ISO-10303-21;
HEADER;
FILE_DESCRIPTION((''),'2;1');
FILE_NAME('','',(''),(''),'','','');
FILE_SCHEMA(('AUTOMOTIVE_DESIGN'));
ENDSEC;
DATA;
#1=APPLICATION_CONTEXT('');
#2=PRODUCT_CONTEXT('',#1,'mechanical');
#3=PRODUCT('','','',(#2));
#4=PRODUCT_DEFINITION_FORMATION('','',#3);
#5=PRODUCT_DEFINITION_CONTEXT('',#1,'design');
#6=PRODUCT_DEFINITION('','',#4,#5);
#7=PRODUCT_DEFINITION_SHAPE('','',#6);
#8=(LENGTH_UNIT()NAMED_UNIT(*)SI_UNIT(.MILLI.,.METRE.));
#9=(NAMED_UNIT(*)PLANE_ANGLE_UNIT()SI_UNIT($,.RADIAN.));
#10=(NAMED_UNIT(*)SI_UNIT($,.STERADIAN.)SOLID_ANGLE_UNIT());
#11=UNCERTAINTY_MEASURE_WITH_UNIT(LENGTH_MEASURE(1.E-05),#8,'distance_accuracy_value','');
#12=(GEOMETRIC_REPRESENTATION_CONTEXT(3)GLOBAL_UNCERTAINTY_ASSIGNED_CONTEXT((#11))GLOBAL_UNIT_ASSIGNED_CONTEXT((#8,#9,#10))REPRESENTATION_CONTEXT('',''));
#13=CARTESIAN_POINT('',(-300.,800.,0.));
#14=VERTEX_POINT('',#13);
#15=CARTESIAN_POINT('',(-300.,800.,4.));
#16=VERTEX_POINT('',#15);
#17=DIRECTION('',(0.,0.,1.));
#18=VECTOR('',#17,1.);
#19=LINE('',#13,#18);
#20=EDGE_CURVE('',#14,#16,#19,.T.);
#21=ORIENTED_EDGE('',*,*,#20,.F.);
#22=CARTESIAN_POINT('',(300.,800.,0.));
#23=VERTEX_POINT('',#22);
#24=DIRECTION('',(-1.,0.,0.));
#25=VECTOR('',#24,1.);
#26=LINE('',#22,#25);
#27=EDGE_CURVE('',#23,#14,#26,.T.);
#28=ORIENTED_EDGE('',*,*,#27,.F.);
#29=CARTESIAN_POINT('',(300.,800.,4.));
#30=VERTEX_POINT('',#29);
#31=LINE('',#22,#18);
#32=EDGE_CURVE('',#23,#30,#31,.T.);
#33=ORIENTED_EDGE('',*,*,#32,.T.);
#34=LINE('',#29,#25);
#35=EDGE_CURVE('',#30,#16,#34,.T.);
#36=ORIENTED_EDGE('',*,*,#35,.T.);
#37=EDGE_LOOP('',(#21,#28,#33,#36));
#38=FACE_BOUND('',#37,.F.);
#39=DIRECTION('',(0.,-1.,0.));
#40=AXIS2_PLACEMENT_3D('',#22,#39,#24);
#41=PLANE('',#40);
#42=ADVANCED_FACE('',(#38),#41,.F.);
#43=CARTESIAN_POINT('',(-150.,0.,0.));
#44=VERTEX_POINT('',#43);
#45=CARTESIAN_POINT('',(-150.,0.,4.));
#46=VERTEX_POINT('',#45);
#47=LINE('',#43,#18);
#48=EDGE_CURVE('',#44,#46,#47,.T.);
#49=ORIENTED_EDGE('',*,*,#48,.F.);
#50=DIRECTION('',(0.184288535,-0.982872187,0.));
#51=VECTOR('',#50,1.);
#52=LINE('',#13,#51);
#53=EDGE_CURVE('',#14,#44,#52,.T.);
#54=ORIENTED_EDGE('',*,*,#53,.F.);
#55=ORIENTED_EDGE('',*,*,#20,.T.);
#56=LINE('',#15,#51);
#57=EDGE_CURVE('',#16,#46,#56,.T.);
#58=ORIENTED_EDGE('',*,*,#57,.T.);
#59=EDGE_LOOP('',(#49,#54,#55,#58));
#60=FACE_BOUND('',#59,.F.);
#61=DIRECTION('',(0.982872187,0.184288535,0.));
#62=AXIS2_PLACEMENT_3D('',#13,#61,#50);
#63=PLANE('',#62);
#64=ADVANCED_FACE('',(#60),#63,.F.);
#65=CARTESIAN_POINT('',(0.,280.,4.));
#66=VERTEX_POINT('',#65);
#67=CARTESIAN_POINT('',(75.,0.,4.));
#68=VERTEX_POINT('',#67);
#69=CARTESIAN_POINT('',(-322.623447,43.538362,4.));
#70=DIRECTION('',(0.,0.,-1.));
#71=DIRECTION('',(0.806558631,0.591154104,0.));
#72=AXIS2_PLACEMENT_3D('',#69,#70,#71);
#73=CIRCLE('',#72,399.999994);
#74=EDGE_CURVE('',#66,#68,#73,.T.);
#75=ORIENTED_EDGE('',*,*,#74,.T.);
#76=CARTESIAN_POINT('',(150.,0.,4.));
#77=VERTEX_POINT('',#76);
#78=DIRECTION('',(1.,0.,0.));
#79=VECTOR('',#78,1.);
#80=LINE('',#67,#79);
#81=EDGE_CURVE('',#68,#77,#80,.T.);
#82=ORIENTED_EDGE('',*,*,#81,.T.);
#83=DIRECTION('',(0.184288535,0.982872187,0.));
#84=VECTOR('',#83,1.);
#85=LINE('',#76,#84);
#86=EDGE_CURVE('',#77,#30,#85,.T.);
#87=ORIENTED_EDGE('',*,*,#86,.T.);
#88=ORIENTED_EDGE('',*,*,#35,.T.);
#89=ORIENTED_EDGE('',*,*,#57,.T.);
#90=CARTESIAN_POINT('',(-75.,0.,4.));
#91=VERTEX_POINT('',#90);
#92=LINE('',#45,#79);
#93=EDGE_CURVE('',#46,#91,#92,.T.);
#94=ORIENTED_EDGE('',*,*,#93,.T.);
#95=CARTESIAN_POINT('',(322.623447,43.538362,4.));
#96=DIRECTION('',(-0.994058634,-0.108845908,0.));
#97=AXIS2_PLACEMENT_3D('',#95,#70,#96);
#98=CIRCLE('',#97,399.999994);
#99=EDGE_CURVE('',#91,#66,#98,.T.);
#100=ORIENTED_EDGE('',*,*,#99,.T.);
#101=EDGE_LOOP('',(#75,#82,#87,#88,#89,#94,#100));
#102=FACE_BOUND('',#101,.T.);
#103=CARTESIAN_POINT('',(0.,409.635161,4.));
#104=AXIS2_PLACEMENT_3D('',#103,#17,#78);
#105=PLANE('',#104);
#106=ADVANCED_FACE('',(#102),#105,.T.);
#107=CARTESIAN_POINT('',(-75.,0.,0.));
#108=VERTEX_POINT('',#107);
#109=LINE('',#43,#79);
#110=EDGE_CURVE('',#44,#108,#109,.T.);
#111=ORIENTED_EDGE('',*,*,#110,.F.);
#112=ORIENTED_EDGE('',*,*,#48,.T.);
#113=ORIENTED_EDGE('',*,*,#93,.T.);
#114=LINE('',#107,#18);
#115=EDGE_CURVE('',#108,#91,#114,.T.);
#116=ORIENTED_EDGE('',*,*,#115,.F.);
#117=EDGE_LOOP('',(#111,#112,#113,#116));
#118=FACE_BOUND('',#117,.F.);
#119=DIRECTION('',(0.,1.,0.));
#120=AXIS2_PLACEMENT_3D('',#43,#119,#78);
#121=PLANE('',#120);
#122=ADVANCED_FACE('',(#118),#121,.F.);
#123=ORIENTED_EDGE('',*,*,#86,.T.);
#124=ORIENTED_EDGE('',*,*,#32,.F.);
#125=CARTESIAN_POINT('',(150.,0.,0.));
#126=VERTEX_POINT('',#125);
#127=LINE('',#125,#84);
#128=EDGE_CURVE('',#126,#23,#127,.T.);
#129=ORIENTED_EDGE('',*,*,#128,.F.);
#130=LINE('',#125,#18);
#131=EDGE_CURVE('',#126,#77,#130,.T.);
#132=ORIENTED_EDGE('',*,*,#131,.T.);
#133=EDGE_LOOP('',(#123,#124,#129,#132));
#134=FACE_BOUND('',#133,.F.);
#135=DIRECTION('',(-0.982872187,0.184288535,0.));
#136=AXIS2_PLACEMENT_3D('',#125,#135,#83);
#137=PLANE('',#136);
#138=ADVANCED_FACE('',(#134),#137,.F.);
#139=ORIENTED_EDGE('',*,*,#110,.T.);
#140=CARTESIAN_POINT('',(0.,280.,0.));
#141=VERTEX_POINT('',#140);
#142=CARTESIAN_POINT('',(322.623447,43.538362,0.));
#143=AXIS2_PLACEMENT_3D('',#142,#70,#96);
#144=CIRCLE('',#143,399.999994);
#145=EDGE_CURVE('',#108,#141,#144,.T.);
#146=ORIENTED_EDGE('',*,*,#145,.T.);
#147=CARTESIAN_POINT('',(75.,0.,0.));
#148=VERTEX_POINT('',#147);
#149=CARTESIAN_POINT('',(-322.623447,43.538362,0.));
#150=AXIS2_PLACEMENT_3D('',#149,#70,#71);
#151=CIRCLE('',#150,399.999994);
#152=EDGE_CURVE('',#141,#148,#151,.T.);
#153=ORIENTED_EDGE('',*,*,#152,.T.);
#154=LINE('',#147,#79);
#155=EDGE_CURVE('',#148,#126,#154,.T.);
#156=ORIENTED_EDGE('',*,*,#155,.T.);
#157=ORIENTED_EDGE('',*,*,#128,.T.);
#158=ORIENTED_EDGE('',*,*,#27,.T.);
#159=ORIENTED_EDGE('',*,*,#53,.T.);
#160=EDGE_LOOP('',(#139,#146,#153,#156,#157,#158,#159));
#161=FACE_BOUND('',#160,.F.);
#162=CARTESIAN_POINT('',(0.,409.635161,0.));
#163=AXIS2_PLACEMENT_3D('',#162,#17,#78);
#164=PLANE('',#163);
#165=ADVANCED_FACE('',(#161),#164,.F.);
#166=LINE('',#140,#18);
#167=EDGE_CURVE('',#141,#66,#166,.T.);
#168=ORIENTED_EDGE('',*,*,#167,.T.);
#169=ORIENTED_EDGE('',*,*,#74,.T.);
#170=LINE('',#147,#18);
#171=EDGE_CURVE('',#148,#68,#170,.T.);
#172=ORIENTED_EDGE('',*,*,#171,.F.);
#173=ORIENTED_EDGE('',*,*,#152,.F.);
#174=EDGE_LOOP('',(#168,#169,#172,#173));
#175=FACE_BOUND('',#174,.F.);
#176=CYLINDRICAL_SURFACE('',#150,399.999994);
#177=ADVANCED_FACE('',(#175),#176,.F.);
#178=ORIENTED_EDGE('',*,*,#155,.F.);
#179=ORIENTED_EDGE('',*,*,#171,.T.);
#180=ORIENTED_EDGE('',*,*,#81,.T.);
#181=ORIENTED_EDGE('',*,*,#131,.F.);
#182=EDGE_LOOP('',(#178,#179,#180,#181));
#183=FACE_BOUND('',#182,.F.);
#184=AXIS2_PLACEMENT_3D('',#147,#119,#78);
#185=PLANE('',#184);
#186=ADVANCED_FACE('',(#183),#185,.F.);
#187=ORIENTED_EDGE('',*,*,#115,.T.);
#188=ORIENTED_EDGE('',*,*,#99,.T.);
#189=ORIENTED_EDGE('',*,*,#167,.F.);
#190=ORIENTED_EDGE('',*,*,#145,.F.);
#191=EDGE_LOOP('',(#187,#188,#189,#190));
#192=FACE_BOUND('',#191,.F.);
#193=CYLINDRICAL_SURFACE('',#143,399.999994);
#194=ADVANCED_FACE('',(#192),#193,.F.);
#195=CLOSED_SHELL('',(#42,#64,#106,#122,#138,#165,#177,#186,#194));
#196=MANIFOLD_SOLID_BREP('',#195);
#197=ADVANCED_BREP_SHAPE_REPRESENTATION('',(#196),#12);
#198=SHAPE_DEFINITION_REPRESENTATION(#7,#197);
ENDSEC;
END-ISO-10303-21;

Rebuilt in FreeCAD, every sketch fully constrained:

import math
import FreeCAD as App
import Part
import Sketcher

V = App.Vector

doc = App.newDocument("Part")
body = doc.addObject("PartDesign::Body", "Body")

# Sketch on XY plane
sketch1 = body.newObject("Sketcher::SketchObject", "Sketch")
sketch1.AttachmentSupport = (doc.getObject("XY_Plane"), [""])
sketch1.MapMode = "FlatFace"
sketch1.addGeometry([
    Part.ArcOfCircle(Part.Circle(V(-323, 44, 0), V(0, 0, 1), 400), math.radians(-6), math.radians(36)),  # 0
    Part.LineSegment(V(75, 0, 0), V(150, 0, 0)),  # 1
    Part.LineSegment(V(150, 0, 0), V(300, 800, 0)),  # 2
    Part.LineSegment(V(300, 800, 0), V(-300, 800, 0)),  # 3
    Part.LineSegment(V(-300, 800, 0), V(-150, 0, 0)),  # 4
    Part.LineSegment(V(-150, 0, 0), V(-75, 0, 0)),  # 5
    Part.ArcOfCircle(Part.Circle(V(323, 44, 0), V(0, 0, 1), 400), math.radians(144), math.radians(186)),  # 6
], False)
sketch1.addConstraint([
    Sketcher.Constraint("Coincident", 0, 1, 1, 1),
    Sketcher.Constraint("Coincident", 1, 2, 2, 1),
    Sketcher.Constraint("Coincident", 2, 2, 3, 1),
    Sketcher.Constraint("Coincident", 3, 2, 4, 1),
    Sketcher.Constraint("Coincident", 4, 2, 5, 1),
    Sketcher.Constraint("Coincident", 5, 2, 6, 2),
    Sketcher.Constraint("Coincident", 6, 1, 0, 2),
    Sketcher.Constraint("Horizontal", 1),
    Sketcher.Constraint("Horizontal", 3),
    Sketcher.Constraint("Horizontal", 5),
    Sketcher.Constraint("Equal", 0, 6),
    Sketcher.Constraint("Symmetric", 1, 2, 4, 2, -1, 1),
    Sketcher.Constraint("Symmetric", 0, 3, 6, 3, -2),
    Sketcher.Constraint("PointOnObject", 1, 2, -1),
    Sketcher.Constraint("Equal", 2, 4),
    Sketcher.Constraint("DistanceX", 1, 1, 1, 2, 75.0),
    Sketcher.Constraint("DistanceX", 3, 2, 3, 1, 600.0),
    Sketcher.Constraint("DistanceX", -1, 1, 0, 1, 75.0),
    Sketcher.Constraint("DistanceY", -1, 1, 2, 2, 800.0),
    Sketcher.Constraint("DistanceY", -1, 1, 6, 1, 280.0),
    Sketcher.Constraint("Radius", 0, 399.999994),
])
pad1 = body.newObject("PartDesign::Pad", "Pad")
pad1.Profile = sketch1
pad1.Length = 4

doc.recompute()
